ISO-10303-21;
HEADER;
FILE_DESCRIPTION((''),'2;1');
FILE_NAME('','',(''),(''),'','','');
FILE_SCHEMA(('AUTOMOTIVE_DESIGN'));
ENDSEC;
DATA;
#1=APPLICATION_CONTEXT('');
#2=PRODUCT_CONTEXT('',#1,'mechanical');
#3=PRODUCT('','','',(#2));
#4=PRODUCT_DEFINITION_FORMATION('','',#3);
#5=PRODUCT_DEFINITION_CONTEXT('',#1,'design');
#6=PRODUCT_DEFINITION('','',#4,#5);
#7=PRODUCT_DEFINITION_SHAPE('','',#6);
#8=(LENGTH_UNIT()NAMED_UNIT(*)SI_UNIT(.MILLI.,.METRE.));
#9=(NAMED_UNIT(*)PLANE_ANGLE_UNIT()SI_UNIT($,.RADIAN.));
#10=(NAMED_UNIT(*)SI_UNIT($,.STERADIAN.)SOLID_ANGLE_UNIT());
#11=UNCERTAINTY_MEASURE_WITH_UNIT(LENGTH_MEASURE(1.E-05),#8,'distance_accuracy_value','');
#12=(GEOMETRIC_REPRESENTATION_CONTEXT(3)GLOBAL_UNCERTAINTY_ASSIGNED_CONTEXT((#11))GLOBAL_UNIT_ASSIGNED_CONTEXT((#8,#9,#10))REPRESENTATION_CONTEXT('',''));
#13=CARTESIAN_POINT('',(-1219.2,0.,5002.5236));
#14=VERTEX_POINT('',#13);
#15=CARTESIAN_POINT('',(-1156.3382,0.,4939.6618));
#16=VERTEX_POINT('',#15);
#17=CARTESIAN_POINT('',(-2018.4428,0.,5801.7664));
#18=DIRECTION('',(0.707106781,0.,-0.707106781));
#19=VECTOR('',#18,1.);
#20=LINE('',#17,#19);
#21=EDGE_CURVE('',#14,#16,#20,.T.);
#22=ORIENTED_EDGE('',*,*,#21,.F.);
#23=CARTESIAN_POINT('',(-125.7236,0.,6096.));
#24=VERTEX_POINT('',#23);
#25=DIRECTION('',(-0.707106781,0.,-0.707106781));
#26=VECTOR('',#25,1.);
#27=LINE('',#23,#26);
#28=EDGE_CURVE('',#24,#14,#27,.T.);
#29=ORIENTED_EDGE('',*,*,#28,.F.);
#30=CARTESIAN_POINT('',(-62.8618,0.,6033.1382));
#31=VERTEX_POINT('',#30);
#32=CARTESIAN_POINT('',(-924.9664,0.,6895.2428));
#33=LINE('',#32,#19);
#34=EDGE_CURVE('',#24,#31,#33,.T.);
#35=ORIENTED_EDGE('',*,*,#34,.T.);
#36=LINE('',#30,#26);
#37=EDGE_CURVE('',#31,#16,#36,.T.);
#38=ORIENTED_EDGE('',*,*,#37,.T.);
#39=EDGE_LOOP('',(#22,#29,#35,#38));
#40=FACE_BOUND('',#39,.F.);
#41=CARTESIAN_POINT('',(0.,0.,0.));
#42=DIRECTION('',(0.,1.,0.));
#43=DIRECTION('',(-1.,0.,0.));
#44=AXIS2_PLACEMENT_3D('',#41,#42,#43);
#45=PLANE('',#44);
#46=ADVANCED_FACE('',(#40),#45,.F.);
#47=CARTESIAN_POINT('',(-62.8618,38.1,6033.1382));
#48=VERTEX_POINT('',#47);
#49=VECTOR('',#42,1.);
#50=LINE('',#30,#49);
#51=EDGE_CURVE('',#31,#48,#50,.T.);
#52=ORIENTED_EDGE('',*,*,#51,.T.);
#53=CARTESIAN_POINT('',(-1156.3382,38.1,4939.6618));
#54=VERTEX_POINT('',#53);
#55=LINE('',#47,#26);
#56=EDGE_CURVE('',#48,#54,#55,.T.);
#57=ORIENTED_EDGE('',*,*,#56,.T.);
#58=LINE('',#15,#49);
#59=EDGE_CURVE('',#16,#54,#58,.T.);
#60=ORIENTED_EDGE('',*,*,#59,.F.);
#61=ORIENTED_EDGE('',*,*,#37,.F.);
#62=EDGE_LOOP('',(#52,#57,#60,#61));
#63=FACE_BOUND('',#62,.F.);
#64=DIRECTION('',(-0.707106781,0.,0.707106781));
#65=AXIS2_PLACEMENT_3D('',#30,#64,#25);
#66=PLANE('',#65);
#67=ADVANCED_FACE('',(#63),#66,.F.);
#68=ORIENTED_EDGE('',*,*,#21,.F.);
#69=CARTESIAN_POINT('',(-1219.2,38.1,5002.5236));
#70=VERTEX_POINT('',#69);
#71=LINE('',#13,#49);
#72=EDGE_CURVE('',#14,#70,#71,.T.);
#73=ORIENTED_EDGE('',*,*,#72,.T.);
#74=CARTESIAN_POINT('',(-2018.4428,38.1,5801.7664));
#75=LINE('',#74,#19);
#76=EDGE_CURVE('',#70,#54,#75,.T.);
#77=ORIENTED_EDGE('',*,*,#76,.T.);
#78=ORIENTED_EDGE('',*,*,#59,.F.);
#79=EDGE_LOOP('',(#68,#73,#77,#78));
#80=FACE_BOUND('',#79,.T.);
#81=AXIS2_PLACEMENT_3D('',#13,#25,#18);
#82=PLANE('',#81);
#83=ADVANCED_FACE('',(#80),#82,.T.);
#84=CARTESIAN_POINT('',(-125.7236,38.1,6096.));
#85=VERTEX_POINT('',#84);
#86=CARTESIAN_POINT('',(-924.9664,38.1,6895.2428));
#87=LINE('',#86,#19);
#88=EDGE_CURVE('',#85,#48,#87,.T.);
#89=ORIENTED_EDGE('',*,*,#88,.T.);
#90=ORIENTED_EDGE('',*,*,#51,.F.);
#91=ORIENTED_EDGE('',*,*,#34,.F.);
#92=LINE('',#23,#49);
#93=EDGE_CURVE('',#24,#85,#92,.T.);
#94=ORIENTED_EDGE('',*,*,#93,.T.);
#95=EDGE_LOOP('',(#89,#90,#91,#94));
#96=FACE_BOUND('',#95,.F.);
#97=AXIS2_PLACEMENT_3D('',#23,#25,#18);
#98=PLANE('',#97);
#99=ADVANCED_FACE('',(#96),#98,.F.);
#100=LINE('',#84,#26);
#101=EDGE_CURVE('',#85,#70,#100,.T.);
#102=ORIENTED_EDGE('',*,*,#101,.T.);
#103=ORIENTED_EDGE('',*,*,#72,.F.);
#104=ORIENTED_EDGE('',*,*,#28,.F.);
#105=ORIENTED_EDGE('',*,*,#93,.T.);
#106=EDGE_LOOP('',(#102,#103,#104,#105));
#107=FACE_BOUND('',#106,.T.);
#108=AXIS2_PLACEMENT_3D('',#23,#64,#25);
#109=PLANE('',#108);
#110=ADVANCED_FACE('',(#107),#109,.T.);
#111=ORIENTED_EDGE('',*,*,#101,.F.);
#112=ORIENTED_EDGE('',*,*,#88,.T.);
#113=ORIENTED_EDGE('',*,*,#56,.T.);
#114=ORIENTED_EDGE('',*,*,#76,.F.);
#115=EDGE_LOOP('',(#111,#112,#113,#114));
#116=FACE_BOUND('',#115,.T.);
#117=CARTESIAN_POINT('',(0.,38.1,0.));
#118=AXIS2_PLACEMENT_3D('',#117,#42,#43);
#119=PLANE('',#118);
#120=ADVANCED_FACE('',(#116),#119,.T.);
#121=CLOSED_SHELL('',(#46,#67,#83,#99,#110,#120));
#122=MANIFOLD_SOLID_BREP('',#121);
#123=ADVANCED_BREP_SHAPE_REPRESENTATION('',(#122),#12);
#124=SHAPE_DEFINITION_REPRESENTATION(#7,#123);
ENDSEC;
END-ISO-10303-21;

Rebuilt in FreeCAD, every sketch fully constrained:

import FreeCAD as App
import Part
import Sketcher
Q = App.Units.Quantity


def add_polygon(sketch, points):
    """Adds a closed chain of lines whose ends are joined by coincident constraints."""
    first, n = sketch.GeometryCount, len(points)
    for a, b in zip(points, points[1:] + points[:1]):
        sketch.addGeometry(Part.LineSegment(App.Vector(*a, 0), App.Vector(*b, 0)), False)
    for i in range(n):
        sketch.addConstraint(Sketcher.Constraint("Coincident", first + i, 2, first + (i + 1) % n, 1))

doc = App.newDocument("Part")
params = doc.addObject("Spreadsheet::Sheet", "Params")
for row, (alias, value) in enumerate([
    ("sketch1_length", "3.5 in"),
    ("pad1_length", "1.5 in"),
], start=1):
    params.set(f"A{row}", alias)
    params.set(f"B{row}", "=" + value)
    params.setAlias(f"B{row}", alias)

body = doc.addObject("PartDesign::Body", "Body")

# Sketch on XZ plane
sketch1 = doc.addObject("Sketcher::SketchObject", "Sketch")
body.addObject(sketch1)
sketch1.AttachmentSupport = (doc.XZ_Plane, [""])
sketch1.MapMode = "FlatFace"
add_polygon(sketch1, [(-63, 6033), (-1156, 4940), (-1219, 5003), (-126, 6096)])  # lines 0-3
sketch1.addConstraint(Sketcher.Constraint("Perpendicular", 0, 1))
sketch1.addConstraint(Sketcher.Constraint("Perpendicular", 1, 2))
sketch1.addConstraint(Sketcher.Constraint("Perpendicular", 2, 3))
sketch1.addConstraint(Sketcher.Constraint("DistanceX", 1, 2, -1, 1, Q("48 in")))
sketch1.addConstraint(Sketcher.Constraint("Angle", 2, Q("45 deg")))
sketch1.addConstraint(Sketcher.Constraint("Distance", 1, Q("3.5 in")))
sketch1.addConstraint(Sketcher.Constraint("DistanceY", -1, 1, 2, 2, Q("240 in")))
sketch1.addConstraint(Sketcher.Constraint("Distance", 0, Q("1546.4092 mm")))
sketch1.setExpression("Constraints[9]", "Params.sketch1_length")
pad1 = doc.addObject("PartDesign::Pad", "Pad")
body.addObject(pad1)
pad1.Profile = sketch1
pad1.setExpression("Length", "Params.pad1_length")
pad1.Reversed = True

doc.recompute()
